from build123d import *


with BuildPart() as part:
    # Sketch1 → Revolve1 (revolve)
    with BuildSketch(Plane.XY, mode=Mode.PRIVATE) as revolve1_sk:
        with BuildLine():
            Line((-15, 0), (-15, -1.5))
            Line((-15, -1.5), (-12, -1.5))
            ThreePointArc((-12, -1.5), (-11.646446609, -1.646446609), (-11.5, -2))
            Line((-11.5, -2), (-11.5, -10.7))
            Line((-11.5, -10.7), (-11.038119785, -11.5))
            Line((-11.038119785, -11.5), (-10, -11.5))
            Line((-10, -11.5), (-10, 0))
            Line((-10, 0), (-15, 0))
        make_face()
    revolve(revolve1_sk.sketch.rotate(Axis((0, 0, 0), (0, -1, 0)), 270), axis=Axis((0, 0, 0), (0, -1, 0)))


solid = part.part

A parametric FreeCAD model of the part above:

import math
import FreeCAD as App
import Part
import Sketcher
from FreeCAD import Vector
Q = App.Units.Quantity

doc = App.newDocument("Part")
body = doc.addObject("PartDesign::Body", "Body")

sketch1 = body.newObject("Sketcher::SketchObject", "Sketch")
sketch1.AttachmentSupport = (doc.getObject("XY_Plane"), [""])
sketch1.MapMode = "FlatFace"
sketch1.addGeometry(Part.LineSegment(Vector(-15, 0, 0), Vector(-15, -1.5, 0)), False)
sketch1.addGeometry(Part.LineSegment(Vector(-15, -1.5, 0), Vector(-12, -1.5, 0)), False)
sketch1.addGeometry(Part.ArcOfCircle(Part.Circle(Vector(-12, -2, 0), Vector(0, 0, 1), 0.5), math.radians(0), math.radians(90)), False)
sketch1.addGeometry(Part.LineSegment(Vector(-11.5, -2, 0), Vector(-11.5, -10.7, 0)), False)
sketch1.addGeometry(Part.LineSegment(Vector(-11.5, -10.7, 0), Vector(-11.04, -11.5, 0)), False)
sketch1.addGeometry(Part.LineSegment(Vector(-11.04, -11.5, 0), Vector(-10, -11.5, 0)), False)
sketch1.addGeometry(Part.LineSegment(Vector(-10, -11.5, 0), Vector(-10, 0, 0)), False)
sketch1.addGeometry(Part.LineSegment(Vector(-10, 0, 0), Vector(-15, 0, 0)), False)
sketch1.addConstraint(Sketcher.Constraint("Coincident", 0, 2, 1, 1))
sketch1.addConstraint(Sketcher.Constraint("Tangent", 1, 2, 2, 2))
sketch1.addConstraint(Sketcher.Constraint("Tangent", 2, 1, 3, 1))
sketch1.addConstraint(Sketcher.Constraint("Coincident", 3, 2, 4, 1))
sketch1.addConstraint(Sketcher.Constraint("Coincident", 4, 2, 5, 1))
sketch1.addConstraint(Sketcher.Constraint("Coincident", 5, 2, 6, 1))
sketch1.addConstraint(Sketcher.Constraint("Coincident", 6, 2, 7, 1))
sketch1.addConstraint(Sketcher.Constraint("Coincident", 7, 2, 0, 1))
sketch1.addConstraint(Sketcher.Constraint("Vertical", 0))
sketch1.addConstraint(Sketcher.Constraint("Horizontal", 1))
sketch1.addConstraint(Sketcher.Constraint("Vertical", 3))
sketch1.addConstraint(Sketcher.Constraint("Horizontal", 5))
sketch1.addConstraint(Sketcher.Constraint("Vertical", 6))
sketch1.addConstraint(Sketcher.Constraint("Horizontal", 7))
sketch1.addConstraint(Sketcher.Constraint("PointOnObject", 6, 2, -1))
sketch1.addConstraint(Sketcher.Constraint("Radius", 2, 0.5))
sketch1.addConstraint(Sketcher.Constraint("DistanceX", 1, 1, 1, 2, 3.0))
sketch1.addConstraint(Sketcher.Constraint("DistanceX", 7, 2, 7, 1, 5.0))
sketch1.addConstraint(Sketcher.Constraint("Angle", 4, Q("-60 deg")))
sketch1.addConstraint(Sketcher.Constraint("DistanceY", 0, 2, 0, 1, 1.5))
sketch1.addConstraint(Sketcher.Constraint("DistanceY", 3, 2, 3, 1, 8.7))
sketch1.addConstraint(Sketcher.Constraint("DistanceY", 6, 1, 6, 2, 11.5))
sketch1.addConstraint(Sketcher.Constraint("DistanceX", 2, 3, -1, 1, 12.0))
revolution = body.newObject("PartDesign::Revolution", "Revolution")
revolution.Profile = sketch1
revolution.ReferenceAxis = (sketch1, ["V_Axis"])
revolution.Angle = 360

doc.recompute()
